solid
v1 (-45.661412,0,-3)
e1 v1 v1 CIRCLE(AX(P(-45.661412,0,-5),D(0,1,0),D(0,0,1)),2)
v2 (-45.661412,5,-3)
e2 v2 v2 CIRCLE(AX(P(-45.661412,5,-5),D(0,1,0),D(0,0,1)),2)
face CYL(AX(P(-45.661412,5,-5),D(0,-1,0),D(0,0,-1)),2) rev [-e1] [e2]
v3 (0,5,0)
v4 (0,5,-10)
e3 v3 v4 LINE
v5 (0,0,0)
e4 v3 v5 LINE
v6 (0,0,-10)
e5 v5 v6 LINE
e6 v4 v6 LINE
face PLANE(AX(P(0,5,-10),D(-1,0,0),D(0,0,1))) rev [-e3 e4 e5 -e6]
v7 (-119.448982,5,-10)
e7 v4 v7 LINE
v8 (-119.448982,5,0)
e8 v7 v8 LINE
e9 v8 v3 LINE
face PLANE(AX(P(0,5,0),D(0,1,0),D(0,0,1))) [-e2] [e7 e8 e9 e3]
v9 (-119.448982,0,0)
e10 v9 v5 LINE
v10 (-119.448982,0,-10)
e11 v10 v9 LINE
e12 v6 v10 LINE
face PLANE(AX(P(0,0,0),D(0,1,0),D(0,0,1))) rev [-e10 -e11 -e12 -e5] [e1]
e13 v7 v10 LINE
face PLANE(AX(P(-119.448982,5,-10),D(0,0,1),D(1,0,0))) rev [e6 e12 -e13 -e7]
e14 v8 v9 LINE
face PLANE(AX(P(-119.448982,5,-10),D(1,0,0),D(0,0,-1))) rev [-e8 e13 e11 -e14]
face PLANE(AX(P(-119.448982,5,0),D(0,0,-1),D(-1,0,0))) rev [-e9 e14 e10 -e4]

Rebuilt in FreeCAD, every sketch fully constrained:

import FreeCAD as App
import Part
import Sketcher

V = App.Vector
Q = App.Units.Quantity


def add_polygon(sketch, points):
    """Adds a closed chain of lines whose ends are joined by coincident constraints."""
    first, n = sketch.GeometryCount, len(points)
    for a, b in zip(points, points[1:] + points[:1]):
        sketch.addGeometry(Part.LineSegment(App.Vector(*a, 0), App.Vector(*b, 0)), False)
    for i in range(n):
        sketch.addConstraint(Sketcher.Constraint("Coincident", first + i, 2, first + (i + 1) % n, 1))

doc = App.newDocument("Part")
params = doc.addObject("Spreadsheet::Sheet", "Params")
for row, (alias, value) in enumerate([
    ("sketch1_diameter", "4 mm"),
    ("sketch1_height", "10 mm"),
    ("pad1_length", "5 mm"),
], start=1):
    params.set(f"A{row}", alias)
    params.set(f"B{row}", "=" + value)
    params.setAlias(f"B{row}", alias)

body = doc.addObject("PartDesign::Body", "Body")

# Sketch on XZ plane
sketch1 = body.newObject("Sketcher::SketchObject", "Sketch")
sketch1.AttachmentSupport = (doc.getObject("XZ_Plane"), [""])
sketch1.MapMode = "FlatFace"
add_polygon(sketch1, [(-119.4, -10), (-119.4, 0), (0, 0), (0, -10)])  # lines 0-3
sketch1.addGeometry(Part.Circle(V(-45.7, -5, 0), V(0, 0, 1), 2), False)  # 4
sketch1.addConstraint([
    Sketcher.Constraint("Vertical", 0),
    Sketcher.Constraint("Horizontal", 1),
    Sketcher.Constraint("Vertical", 2),
    Sketcher.Constraint("Horizontal", 3),
    Sketcher.Constraint("Coincident", 1, 2, -1, 1),
    Sketcher.Constraint("Diameter", 4, Q("4 mm")),
    Sketcher.Constraint("DistanceY", 0, 1, 0, 2, Q("10 mm")),
    Sketcher.Constraint("DistanceY", 4, 3, -1, 1, Q("5 mm")),
    Sketcher.Constraint("DistanceX", 1, 1, 1, 2, Q("119.448982 mm")),
    Sketcher.Constraint("DistanceX", 0, 2, 4, 3, Q("73.78757 mm")),
])
sketch1.setExpression("Constraints[9]", "Params.sketch1_diameter")
sketch1.setExpression("Constraints[10]", "Params.sketch1_height")
pad1 = body.newObject("PartDesign::Pad", "Pad")
pad1.Profile = sketch1
pad1.setExpression("Length", "Params.pad1_length")
pad1.Reversed = True

doc.recompute()
